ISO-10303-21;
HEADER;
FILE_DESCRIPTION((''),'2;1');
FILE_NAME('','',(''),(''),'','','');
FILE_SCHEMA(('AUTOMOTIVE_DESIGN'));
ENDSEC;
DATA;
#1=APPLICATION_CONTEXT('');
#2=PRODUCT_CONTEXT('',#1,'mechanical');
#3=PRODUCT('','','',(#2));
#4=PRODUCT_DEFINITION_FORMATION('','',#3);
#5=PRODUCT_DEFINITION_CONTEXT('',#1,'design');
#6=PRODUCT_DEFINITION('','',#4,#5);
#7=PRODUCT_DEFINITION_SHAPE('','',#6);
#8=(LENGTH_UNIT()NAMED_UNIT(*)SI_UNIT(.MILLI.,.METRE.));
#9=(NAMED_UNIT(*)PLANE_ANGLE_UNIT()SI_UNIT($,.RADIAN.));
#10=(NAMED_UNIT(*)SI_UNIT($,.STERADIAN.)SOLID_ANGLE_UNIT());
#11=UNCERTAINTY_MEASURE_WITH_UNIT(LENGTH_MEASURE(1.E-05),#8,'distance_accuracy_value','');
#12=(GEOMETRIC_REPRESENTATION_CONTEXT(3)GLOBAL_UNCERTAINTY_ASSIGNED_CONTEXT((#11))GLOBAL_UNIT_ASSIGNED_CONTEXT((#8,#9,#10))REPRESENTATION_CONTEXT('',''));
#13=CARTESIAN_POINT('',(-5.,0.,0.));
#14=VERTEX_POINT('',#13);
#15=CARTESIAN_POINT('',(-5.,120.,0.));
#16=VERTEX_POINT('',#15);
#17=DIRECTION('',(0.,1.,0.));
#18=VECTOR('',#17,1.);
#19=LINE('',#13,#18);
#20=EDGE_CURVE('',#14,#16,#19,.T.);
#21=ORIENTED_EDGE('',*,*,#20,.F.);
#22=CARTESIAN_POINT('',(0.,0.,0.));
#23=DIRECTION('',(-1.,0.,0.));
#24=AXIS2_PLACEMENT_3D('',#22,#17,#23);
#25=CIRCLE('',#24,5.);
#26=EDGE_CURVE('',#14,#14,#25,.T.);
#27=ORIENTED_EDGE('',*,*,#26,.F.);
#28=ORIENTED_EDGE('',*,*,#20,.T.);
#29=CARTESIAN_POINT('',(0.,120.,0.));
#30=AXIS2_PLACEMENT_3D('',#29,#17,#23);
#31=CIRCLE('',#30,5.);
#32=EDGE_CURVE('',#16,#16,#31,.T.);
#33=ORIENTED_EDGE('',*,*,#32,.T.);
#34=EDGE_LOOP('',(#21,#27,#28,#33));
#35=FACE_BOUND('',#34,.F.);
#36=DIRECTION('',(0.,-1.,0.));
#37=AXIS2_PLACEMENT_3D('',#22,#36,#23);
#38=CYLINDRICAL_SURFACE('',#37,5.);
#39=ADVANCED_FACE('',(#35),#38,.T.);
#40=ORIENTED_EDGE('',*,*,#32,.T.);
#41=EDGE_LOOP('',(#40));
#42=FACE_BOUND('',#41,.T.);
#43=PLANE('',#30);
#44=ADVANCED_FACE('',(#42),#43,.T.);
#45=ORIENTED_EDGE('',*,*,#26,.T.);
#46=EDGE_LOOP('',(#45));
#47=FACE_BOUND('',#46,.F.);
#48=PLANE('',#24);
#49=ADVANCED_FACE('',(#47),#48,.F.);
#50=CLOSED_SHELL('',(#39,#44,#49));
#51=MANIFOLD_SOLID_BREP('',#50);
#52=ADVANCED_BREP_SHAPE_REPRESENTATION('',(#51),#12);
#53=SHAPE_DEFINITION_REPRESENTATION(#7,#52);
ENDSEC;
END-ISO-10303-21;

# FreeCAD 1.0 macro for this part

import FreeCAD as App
import Part
import Sketcher

V = App.Vector

doc = App.newDocument("Part")
params = doc.addObject("Spreadsheet::Sheet", "Params")
for row, (alias, value) in enumerate([
    ("sketch1_diameter", "10 mm"),
    ("pad1_length", "120 mm"),
], start=1):
    params.set(f"A{row}", alias)
    params.set(f"B{row}", "=" + value)
    params.setAlias(f"B{row}", alias)

body = doc.addObject("PartDesign::Body", "Body")

# Sketch on XZ plane
sketch1 = doc.addObject("Sketcher::SketchObject", "Sketch")
body.addObject(sketch1)
sketch1.AttachmentSupport = (doc.XZ_Plane, [""])
sketch1.MapMode = "FlatFace"
sketch1.addGeometry(Part.Circle(V(0, 0, 0), V(0, 0, 1), 5), False)
sketch1.addConstraint([
    Sketcher.Constraint("Coincident", 0, 3, -1, 1),
    Sketcher.Constraint("Diameter", 0, 10.0),
])
sketch1.setExpression("Constraints[1]", "Params.sketch1_diameter")
pad1 = doc.addObject("PartDesign::Pad", "Pad")
body.addObject(pad1)
pad1.Profile = sketch1
pad1.setExpression("Length", "Params.pad1_length")
pad1.Reversed = True

doc.recompute()
